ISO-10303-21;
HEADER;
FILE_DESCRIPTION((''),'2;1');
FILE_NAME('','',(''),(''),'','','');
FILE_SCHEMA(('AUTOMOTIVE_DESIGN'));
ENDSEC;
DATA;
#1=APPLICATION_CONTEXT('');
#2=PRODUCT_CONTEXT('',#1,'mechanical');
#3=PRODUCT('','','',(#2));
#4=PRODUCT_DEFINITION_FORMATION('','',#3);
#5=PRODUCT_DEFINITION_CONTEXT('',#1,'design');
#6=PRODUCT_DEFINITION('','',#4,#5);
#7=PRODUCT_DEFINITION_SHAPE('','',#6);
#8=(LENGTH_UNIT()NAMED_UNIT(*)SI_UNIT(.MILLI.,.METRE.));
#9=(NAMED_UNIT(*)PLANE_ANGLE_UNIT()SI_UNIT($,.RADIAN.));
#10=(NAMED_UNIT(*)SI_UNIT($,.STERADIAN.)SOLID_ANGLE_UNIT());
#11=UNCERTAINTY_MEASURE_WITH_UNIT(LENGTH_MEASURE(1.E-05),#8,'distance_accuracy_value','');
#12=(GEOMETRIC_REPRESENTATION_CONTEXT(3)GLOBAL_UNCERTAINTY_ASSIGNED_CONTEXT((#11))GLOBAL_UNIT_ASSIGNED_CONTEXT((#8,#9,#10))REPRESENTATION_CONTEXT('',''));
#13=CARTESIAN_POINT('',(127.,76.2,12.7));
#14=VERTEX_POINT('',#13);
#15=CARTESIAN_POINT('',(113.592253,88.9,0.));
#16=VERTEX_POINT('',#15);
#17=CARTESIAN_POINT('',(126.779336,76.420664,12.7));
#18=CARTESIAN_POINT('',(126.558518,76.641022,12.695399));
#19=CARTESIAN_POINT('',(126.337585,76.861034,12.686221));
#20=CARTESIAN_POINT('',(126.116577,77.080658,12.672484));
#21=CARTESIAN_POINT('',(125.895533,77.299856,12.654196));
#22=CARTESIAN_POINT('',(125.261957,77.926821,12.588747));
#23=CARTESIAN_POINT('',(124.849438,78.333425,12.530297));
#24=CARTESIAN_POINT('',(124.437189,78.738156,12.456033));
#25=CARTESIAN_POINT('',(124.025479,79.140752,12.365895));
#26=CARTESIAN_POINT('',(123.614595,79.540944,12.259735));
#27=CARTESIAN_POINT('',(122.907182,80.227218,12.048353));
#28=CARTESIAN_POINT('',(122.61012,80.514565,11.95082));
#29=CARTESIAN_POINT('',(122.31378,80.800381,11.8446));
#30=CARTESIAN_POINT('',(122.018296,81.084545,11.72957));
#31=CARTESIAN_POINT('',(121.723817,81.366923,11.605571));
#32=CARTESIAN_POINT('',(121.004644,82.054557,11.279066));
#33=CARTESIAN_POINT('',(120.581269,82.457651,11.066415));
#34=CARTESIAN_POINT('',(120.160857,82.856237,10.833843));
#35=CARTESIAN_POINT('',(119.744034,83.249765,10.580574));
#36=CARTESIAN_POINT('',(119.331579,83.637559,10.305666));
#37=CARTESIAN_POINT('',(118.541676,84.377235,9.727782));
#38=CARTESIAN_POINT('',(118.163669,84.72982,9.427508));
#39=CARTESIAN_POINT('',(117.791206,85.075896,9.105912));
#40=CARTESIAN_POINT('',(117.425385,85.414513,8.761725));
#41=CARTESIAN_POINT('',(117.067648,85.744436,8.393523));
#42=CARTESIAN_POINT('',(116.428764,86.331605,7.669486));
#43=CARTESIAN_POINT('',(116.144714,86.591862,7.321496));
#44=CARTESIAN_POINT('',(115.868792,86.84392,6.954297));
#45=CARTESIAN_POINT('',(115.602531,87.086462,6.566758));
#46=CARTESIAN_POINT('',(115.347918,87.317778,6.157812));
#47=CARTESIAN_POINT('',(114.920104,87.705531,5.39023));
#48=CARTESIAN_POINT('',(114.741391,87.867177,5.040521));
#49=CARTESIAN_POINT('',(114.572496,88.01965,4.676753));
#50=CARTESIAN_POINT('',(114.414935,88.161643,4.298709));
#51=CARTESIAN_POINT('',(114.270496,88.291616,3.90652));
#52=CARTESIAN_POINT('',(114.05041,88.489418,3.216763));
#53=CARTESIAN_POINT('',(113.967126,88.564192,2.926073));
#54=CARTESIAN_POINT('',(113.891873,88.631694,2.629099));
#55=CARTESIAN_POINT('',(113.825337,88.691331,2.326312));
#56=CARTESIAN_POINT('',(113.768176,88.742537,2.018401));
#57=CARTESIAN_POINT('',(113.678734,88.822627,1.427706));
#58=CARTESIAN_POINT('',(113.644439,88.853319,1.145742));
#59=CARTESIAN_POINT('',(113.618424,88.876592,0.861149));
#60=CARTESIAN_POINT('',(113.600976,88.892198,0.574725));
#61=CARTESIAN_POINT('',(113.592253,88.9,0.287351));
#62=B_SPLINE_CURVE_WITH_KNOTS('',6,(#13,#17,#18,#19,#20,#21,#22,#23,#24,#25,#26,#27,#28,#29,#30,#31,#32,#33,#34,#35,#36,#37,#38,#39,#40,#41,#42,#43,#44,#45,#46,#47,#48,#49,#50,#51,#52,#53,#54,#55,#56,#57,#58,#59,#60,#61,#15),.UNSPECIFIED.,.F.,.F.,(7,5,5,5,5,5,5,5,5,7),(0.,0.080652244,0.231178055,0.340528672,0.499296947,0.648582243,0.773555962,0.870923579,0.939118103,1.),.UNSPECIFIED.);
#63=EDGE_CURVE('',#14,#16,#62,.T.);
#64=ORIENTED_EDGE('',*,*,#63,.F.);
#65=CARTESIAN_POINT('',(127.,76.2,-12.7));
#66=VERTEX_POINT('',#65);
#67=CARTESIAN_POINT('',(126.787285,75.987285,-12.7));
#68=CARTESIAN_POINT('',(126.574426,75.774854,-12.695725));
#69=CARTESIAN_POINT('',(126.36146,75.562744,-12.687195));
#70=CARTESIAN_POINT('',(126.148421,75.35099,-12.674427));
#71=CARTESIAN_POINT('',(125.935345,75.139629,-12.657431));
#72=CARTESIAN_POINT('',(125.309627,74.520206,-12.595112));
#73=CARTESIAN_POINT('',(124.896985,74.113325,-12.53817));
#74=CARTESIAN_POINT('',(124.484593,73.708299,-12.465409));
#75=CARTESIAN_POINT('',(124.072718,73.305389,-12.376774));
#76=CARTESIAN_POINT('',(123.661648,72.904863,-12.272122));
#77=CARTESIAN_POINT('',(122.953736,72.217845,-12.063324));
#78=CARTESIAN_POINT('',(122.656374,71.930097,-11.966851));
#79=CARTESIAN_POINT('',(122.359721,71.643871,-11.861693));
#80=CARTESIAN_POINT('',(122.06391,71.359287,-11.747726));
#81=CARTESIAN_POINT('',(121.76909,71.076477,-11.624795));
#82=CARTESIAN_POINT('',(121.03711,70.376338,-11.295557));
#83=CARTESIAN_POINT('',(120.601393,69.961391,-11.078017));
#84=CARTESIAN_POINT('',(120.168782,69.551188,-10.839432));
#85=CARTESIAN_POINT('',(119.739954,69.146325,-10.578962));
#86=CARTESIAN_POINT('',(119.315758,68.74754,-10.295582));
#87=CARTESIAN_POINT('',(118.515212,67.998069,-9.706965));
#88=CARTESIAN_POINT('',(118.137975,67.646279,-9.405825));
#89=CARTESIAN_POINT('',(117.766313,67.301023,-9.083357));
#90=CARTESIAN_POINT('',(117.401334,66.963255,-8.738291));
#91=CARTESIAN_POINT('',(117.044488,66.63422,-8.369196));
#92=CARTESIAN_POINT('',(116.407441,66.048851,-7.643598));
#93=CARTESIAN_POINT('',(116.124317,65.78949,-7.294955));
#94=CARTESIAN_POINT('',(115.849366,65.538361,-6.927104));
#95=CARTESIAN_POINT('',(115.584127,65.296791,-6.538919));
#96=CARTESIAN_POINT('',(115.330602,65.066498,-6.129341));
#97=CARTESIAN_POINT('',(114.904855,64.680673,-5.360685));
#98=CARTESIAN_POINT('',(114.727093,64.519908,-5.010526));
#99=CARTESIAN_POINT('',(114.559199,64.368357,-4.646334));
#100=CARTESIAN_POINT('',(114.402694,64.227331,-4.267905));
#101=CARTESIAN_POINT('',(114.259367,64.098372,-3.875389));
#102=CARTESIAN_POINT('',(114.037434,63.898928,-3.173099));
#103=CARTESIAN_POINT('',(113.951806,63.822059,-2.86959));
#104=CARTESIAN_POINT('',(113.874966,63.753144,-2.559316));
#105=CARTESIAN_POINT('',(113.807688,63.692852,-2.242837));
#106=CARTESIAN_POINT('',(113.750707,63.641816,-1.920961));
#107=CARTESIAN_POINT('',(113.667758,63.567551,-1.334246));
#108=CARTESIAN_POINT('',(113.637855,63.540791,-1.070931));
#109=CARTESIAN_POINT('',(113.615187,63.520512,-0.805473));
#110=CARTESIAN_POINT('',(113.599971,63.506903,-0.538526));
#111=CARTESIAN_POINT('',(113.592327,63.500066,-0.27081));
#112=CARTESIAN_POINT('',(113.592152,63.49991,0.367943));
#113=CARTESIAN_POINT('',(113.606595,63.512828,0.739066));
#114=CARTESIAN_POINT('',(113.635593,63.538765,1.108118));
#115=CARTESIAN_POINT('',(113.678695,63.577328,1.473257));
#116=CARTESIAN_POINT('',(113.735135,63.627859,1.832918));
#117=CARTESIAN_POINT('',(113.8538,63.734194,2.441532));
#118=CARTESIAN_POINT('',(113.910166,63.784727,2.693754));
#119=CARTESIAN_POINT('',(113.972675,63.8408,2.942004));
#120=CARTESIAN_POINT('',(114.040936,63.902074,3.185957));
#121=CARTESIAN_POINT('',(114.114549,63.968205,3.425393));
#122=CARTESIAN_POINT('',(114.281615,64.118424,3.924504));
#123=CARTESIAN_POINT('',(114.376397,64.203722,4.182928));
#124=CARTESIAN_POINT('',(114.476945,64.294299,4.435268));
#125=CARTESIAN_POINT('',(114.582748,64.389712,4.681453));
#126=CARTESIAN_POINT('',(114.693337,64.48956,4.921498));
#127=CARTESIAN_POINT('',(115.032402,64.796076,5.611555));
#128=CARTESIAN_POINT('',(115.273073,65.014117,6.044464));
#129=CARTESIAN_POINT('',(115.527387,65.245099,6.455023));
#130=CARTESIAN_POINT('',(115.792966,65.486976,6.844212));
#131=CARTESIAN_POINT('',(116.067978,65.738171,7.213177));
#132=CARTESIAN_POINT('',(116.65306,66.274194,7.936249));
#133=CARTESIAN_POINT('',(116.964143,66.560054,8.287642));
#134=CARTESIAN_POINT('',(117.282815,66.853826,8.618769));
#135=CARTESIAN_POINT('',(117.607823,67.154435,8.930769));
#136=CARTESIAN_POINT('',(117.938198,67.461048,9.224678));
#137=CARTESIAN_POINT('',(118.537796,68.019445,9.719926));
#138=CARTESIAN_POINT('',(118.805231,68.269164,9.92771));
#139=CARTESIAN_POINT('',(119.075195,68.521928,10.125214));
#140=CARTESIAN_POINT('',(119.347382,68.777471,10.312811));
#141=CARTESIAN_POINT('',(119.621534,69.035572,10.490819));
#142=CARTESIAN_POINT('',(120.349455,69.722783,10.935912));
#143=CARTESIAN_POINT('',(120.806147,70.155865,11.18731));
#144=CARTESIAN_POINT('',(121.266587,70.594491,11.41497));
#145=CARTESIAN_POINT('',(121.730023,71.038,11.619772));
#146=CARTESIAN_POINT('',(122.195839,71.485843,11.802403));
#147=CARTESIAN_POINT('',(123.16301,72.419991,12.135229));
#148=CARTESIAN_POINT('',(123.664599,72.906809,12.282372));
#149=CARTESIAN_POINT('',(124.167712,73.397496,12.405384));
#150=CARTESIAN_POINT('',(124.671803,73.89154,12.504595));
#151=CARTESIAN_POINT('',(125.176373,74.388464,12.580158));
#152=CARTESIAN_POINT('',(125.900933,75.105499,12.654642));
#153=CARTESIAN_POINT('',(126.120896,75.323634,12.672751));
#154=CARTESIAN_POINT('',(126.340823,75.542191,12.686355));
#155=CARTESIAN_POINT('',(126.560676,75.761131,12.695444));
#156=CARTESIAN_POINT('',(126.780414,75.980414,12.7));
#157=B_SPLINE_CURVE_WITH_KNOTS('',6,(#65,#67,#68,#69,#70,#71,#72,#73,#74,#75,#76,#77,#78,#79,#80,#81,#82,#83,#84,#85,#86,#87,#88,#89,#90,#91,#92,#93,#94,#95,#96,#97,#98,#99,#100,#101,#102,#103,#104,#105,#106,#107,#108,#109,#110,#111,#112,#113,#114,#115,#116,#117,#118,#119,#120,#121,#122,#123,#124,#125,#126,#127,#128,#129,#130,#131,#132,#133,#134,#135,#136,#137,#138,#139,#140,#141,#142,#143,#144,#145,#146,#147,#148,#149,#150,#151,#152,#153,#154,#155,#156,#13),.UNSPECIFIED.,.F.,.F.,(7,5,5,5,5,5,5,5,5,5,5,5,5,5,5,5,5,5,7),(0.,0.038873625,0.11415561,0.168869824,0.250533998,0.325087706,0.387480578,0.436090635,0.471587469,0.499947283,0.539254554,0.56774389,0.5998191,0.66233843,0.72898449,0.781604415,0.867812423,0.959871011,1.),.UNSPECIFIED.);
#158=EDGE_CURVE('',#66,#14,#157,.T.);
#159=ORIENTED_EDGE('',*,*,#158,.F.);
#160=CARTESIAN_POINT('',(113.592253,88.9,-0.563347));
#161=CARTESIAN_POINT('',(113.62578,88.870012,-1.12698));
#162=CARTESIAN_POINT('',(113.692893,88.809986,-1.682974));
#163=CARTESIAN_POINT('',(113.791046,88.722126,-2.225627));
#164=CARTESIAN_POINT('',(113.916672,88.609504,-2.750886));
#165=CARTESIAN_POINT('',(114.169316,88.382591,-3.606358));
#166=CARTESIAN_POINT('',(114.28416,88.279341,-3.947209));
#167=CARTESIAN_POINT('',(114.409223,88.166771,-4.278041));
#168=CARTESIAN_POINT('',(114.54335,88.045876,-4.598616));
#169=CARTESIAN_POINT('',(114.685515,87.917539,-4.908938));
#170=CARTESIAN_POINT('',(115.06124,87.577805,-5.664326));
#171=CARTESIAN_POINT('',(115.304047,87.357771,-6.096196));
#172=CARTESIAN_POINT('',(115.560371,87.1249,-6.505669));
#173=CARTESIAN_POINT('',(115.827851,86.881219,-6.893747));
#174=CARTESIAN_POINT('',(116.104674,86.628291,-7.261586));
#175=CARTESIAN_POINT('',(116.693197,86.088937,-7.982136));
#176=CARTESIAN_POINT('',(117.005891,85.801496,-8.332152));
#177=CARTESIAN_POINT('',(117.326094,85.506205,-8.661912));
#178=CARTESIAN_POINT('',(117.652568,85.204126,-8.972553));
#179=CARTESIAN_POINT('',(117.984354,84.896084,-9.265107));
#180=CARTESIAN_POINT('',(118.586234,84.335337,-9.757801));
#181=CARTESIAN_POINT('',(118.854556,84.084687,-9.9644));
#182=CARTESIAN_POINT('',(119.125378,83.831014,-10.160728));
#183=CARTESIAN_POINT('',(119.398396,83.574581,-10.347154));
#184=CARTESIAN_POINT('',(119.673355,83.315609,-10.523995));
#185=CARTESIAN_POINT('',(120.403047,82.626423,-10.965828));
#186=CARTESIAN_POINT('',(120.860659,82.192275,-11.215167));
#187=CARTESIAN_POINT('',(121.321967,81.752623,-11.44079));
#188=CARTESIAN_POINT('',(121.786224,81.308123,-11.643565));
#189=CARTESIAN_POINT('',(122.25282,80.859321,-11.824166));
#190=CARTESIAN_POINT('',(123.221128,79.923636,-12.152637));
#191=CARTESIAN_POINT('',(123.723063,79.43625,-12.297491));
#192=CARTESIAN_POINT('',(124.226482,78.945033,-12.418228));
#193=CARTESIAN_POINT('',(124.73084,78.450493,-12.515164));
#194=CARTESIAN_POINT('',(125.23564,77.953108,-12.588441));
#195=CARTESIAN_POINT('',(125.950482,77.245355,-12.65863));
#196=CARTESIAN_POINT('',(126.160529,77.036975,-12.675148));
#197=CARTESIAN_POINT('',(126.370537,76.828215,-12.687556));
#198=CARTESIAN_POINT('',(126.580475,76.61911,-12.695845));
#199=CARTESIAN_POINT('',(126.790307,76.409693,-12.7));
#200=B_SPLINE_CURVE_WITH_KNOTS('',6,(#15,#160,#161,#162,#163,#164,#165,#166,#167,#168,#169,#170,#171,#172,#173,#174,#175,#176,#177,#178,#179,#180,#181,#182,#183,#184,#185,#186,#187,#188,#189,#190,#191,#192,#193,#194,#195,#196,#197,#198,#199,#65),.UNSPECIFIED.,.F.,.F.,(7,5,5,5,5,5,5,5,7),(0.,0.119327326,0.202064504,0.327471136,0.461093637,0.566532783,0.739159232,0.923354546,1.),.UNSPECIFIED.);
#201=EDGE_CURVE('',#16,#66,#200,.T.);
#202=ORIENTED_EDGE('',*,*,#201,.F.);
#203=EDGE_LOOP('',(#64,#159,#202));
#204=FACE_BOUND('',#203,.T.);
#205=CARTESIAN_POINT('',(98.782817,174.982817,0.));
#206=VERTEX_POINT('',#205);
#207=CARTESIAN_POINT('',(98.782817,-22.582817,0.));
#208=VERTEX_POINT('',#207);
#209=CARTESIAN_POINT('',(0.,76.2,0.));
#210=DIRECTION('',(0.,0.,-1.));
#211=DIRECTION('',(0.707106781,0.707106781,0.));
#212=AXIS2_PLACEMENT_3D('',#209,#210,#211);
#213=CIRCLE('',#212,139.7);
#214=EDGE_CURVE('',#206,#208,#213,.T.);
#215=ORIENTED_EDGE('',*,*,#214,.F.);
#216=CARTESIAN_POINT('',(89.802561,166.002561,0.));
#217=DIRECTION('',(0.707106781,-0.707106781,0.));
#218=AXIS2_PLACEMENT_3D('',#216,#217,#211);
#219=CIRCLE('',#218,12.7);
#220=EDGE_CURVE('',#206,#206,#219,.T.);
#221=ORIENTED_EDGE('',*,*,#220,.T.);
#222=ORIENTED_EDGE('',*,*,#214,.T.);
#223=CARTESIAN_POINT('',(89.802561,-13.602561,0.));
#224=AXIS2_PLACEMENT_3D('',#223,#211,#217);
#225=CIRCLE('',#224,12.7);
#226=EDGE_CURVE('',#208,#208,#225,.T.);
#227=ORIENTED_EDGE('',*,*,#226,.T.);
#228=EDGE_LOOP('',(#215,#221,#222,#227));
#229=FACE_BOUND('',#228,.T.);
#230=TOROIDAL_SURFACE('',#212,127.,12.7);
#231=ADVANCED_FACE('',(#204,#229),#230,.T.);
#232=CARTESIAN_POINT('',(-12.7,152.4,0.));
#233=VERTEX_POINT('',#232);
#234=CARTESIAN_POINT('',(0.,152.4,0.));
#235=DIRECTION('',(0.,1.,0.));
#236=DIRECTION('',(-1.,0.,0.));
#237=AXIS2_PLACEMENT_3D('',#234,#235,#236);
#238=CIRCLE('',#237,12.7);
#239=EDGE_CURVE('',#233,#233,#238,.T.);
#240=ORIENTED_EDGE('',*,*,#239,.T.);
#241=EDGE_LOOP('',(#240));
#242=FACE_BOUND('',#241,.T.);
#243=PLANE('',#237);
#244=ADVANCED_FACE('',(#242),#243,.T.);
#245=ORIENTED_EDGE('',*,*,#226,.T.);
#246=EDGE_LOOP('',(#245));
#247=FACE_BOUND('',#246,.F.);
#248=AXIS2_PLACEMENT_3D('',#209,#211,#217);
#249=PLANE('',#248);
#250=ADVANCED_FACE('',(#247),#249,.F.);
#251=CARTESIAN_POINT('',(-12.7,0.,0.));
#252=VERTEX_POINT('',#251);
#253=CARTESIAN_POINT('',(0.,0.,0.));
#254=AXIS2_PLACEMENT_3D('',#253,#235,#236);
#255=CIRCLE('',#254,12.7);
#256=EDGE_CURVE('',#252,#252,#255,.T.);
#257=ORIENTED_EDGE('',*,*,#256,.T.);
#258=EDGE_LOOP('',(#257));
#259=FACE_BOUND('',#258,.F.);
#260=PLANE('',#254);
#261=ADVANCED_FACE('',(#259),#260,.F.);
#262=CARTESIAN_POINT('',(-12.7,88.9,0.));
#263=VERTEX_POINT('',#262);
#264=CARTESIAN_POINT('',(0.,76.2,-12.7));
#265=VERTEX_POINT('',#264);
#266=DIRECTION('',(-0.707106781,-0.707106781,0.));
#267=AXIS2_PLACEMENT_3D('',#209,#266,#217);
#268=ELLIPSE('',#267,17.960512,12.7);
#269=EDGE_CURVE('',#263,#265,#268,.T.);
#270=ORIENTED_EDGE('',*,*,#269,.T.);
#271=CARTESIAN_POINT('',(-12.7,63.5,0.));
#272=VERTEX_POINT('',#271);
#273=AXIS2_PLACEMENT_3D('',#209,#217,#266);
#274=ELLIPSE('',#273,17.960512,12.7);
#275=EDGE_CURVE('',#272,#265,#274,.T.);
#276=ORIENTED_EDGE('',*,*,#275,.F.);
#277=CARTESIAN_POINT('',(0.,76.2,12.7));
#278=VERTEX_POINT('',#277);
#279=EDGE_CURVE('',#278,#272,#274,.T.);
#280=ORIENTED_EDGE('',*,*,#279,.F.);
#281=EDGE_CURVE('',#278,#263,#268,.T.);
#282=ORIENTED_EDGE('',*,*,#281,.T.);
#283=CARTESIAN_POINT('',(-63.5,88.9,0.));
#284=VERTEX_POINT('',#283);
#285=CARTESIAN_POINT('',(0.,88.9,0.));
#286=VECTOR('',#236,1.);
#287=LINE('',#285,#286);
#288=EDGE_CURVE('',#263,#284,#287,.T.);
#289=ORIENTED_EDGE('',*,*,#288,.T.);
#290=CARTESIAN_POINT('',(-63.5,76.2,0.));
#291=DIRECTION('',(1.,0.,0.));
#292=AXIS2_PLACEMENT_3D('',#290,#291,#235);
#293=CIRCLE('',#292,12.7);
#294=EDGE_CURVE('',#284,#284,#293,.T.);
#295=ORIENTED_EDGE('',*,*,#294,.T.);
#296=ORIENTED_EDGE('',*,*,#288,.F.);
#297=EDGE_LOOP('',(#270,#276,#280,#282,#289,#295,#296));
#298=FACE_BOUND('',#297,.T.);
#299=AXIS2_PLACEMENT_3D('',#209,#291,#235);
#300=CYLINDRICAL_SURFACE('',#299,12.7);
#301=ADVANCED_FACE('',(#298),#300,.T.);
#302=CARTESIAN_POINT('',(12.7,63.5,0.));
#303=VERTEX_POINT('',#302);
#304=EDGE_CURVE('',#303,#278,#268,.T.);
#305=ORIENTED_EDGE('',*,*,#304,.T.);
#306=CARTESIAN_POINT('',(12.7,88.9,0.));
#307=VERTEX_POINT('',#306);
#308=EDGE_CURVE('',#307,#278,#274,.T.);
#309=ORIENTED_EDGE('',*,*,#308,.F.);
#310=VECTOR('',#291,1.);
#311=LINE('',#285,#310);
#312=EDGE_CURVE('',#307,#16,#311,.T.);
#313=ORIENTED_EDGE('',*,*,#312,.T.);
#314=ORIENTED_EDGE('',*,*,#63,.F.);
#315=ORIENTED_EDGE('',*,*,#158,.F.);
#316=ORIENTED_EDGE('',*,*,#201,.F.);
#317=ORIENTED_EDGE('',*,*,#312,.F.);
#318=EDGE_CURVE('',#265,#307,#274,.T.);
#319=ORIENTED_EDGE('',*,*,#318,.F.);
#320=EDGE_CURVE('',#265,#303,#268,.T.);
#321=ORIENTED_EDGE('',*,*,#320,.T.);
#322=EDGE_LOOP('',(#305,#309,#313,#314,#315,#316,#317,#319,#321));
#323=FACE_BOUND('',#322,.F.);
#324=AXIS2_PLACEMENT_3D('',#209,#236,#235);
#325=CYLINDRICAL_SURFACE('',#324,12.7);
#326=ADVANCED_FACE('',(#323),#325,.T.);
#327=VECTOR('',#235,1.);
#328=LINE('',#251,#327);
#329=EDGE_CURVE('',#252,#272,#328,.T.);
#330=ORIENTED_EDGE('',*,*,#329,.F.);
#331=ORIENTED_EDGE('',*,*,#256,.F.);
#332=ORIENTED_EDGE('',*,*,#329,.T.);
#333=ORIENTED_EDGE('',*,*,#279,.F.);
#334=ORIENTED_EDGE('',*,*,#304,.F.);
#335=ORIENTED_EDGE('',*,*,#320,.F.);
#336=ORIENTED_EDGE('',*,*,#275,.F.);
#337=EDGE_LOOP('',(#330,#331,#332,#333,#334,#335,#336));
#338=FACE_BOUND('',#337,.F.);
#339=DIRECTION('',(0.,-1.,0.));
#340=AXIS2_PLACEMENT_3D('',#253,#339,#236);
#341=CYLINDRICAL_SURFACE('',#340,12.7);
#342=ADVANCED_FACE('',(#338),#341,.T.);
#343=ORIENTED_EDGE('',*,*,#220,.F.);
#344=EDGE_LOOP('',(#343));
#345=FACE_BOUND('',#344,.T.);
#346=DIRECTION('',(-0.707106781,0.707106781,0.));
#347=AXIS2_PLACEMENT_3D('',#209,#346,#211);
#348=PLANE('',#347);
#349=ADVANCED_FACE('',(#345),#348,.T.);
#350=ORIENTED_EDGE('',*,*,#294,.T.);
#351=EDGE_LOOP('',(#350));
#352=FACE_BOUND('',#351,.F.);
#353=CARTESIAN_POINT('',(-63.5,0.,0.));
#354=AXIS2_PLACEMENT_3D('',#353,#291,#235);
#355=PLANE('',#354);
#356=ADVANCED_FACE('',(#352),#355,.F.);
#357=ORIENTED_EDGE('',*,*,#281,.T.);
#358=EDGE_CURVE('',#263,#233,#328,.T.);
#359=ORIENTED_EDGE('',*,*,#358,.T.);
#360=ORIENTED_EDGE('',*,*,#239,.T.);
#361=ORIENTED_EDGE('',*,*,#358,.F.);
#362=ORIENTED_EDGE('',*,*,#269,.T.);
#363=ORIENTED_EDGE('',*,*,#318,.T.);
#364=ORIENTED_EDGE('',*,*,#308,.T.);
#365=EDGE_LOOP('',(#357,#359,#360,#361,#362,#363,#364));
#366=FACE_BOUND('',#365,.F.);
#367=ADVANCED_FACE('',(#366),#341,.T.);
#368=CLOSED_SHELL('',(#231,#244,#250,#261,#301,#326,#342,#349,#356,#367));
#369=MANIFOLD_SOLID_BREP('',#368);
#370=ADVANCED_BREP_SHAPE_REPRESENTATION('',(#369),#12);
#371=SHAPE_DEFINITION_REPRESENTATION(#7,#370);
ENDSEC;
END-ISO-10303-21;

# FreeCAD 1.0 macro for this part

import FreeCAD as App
import Part
import Sketcher
Q = App.Units.Quantity

doc = App.newDocument("Part")
params = doc.addObject("Spreadsheet::Sheet", "Params")
for row, (alias, value) in enumerate([
    ("sketch1_diameter", "1 in"),
    ("pad1_length", "6 in"),
    ("sketch2_diameter", "1 in"),
    ("pad2_length", "5 in"),
    ("pad2_length2", "2.5 in"),
    ("sketch3_diameter", "1 in"),
    ("revolution_angle", "90 deg"),
], start=1):
    params.set(f"A{row}", alias)
    params.set(f"B{row}", "=" + value)
    params.setAlias(f"B{row}", alias)

body = doc.addObject("PartDesign::Body", "Body")

# Sketch on XZ plane
sketch1 = body.newObject("Sketcher::SketchObject", "Sketch")
sketch1.AttachmentSupport = (doc.getObject("XZ_Plane"), [""])
sketch1.MapMode = "FlatFace"
sketch1.addGeometry(Part.Circle(App.Vector(0, 0, 0), App.Vector(0, 0, 1), 13), False)
sketch1.addConstraint(Sketcher.Constraint("Coincident", 0, 3, -1, 1))
sketch1.addConstraint(Sketcher.Constraint("Diameter", 0, Q("1 in")))
sketch1.setExpression("Constraints[1]", "Params.sketch1_diameter")
pad1 = body.newObject("PartDesign::Pad", "Pad")
pad1.Profile = sketch1
pad1.setExpression("Length", "Params.pad1_length")
pad1.Reversed = True

# Sketch on YZ plane
sketch2 = body.newObject("Sketcher::SketchObject", "Sketch001")
sketch2.AttachmentSupport = (doc.getObject("YZ_Plane"), [""])
sketch2.MapMode = "FlatFace"
sketch2.addGeometry(Part.Circle(App.Vector(76, 0, 0), App.Vector(0, 0, 1), 13), False)
sketch2.addConstraint(Sketcher.Constraint("PointOnObject", 0, 3, -1))
sketch2.addConstraint(Sketcher.Constraint("Diameter", 0, Q("1 in")))
sketch2.addConstraint(Sketcher.Constraint("DistanceX", -1, 1, 0, 3, Q("3 in")))
sketch2.setExpression("Constraints[1]", "Params.sketch2_diameter")
pad2 = body.newObject("PartDesign::Pad", "Pad001")
pad2.Profile = sketch2
pad2.Type = "TwoLengths"
pad2.setExpression("Length", "Params.pad2_length")
pad2.setExpression("Length2", "Params.pad2_length2")

# Sketch on XZ plane
sketch3 = body.newObject("Sketcher::SketchObject", "Sketch002")
sketch3.AttachmentSupport = (doc.getObject("XZ_Plane"), [""])
sketch3.MapMode = "FlatFace"
sketch3.AttachmentOffset = App.Placement(App.Vector(0, 0, -3 * 25.4), App.Rotation())
sketch3.addGeometry(Part.Circle(App.Vector(127, 0, 0), App.Vector(0, 0, 1), 13), False)
sketch3.addConstraint(Sketcher.Constraint("PointOnObject", 0, 3, -1))
sketch3.addConstraint(Sketcher.Constraint("Diameter", 0, Q("1 in")))
sketch3.addConstraint(Sketcher.Constraint("DistanceX", -1, 1, 0, 3, Q("5 in")))
sketch3.setExpression("Constraints[1]", "Params.sketch3_diameter")
revolution = body.newObject("PartDesign::Revolution", "Revolution")
revolution.Profile = sketch3
revolution.ReferenceAxis = (sketch3, ["V_Axis"])
revolution.setExpression("Angle", "Params.revolution_angle")
revolution.Midplane = True

doc.recompute()
